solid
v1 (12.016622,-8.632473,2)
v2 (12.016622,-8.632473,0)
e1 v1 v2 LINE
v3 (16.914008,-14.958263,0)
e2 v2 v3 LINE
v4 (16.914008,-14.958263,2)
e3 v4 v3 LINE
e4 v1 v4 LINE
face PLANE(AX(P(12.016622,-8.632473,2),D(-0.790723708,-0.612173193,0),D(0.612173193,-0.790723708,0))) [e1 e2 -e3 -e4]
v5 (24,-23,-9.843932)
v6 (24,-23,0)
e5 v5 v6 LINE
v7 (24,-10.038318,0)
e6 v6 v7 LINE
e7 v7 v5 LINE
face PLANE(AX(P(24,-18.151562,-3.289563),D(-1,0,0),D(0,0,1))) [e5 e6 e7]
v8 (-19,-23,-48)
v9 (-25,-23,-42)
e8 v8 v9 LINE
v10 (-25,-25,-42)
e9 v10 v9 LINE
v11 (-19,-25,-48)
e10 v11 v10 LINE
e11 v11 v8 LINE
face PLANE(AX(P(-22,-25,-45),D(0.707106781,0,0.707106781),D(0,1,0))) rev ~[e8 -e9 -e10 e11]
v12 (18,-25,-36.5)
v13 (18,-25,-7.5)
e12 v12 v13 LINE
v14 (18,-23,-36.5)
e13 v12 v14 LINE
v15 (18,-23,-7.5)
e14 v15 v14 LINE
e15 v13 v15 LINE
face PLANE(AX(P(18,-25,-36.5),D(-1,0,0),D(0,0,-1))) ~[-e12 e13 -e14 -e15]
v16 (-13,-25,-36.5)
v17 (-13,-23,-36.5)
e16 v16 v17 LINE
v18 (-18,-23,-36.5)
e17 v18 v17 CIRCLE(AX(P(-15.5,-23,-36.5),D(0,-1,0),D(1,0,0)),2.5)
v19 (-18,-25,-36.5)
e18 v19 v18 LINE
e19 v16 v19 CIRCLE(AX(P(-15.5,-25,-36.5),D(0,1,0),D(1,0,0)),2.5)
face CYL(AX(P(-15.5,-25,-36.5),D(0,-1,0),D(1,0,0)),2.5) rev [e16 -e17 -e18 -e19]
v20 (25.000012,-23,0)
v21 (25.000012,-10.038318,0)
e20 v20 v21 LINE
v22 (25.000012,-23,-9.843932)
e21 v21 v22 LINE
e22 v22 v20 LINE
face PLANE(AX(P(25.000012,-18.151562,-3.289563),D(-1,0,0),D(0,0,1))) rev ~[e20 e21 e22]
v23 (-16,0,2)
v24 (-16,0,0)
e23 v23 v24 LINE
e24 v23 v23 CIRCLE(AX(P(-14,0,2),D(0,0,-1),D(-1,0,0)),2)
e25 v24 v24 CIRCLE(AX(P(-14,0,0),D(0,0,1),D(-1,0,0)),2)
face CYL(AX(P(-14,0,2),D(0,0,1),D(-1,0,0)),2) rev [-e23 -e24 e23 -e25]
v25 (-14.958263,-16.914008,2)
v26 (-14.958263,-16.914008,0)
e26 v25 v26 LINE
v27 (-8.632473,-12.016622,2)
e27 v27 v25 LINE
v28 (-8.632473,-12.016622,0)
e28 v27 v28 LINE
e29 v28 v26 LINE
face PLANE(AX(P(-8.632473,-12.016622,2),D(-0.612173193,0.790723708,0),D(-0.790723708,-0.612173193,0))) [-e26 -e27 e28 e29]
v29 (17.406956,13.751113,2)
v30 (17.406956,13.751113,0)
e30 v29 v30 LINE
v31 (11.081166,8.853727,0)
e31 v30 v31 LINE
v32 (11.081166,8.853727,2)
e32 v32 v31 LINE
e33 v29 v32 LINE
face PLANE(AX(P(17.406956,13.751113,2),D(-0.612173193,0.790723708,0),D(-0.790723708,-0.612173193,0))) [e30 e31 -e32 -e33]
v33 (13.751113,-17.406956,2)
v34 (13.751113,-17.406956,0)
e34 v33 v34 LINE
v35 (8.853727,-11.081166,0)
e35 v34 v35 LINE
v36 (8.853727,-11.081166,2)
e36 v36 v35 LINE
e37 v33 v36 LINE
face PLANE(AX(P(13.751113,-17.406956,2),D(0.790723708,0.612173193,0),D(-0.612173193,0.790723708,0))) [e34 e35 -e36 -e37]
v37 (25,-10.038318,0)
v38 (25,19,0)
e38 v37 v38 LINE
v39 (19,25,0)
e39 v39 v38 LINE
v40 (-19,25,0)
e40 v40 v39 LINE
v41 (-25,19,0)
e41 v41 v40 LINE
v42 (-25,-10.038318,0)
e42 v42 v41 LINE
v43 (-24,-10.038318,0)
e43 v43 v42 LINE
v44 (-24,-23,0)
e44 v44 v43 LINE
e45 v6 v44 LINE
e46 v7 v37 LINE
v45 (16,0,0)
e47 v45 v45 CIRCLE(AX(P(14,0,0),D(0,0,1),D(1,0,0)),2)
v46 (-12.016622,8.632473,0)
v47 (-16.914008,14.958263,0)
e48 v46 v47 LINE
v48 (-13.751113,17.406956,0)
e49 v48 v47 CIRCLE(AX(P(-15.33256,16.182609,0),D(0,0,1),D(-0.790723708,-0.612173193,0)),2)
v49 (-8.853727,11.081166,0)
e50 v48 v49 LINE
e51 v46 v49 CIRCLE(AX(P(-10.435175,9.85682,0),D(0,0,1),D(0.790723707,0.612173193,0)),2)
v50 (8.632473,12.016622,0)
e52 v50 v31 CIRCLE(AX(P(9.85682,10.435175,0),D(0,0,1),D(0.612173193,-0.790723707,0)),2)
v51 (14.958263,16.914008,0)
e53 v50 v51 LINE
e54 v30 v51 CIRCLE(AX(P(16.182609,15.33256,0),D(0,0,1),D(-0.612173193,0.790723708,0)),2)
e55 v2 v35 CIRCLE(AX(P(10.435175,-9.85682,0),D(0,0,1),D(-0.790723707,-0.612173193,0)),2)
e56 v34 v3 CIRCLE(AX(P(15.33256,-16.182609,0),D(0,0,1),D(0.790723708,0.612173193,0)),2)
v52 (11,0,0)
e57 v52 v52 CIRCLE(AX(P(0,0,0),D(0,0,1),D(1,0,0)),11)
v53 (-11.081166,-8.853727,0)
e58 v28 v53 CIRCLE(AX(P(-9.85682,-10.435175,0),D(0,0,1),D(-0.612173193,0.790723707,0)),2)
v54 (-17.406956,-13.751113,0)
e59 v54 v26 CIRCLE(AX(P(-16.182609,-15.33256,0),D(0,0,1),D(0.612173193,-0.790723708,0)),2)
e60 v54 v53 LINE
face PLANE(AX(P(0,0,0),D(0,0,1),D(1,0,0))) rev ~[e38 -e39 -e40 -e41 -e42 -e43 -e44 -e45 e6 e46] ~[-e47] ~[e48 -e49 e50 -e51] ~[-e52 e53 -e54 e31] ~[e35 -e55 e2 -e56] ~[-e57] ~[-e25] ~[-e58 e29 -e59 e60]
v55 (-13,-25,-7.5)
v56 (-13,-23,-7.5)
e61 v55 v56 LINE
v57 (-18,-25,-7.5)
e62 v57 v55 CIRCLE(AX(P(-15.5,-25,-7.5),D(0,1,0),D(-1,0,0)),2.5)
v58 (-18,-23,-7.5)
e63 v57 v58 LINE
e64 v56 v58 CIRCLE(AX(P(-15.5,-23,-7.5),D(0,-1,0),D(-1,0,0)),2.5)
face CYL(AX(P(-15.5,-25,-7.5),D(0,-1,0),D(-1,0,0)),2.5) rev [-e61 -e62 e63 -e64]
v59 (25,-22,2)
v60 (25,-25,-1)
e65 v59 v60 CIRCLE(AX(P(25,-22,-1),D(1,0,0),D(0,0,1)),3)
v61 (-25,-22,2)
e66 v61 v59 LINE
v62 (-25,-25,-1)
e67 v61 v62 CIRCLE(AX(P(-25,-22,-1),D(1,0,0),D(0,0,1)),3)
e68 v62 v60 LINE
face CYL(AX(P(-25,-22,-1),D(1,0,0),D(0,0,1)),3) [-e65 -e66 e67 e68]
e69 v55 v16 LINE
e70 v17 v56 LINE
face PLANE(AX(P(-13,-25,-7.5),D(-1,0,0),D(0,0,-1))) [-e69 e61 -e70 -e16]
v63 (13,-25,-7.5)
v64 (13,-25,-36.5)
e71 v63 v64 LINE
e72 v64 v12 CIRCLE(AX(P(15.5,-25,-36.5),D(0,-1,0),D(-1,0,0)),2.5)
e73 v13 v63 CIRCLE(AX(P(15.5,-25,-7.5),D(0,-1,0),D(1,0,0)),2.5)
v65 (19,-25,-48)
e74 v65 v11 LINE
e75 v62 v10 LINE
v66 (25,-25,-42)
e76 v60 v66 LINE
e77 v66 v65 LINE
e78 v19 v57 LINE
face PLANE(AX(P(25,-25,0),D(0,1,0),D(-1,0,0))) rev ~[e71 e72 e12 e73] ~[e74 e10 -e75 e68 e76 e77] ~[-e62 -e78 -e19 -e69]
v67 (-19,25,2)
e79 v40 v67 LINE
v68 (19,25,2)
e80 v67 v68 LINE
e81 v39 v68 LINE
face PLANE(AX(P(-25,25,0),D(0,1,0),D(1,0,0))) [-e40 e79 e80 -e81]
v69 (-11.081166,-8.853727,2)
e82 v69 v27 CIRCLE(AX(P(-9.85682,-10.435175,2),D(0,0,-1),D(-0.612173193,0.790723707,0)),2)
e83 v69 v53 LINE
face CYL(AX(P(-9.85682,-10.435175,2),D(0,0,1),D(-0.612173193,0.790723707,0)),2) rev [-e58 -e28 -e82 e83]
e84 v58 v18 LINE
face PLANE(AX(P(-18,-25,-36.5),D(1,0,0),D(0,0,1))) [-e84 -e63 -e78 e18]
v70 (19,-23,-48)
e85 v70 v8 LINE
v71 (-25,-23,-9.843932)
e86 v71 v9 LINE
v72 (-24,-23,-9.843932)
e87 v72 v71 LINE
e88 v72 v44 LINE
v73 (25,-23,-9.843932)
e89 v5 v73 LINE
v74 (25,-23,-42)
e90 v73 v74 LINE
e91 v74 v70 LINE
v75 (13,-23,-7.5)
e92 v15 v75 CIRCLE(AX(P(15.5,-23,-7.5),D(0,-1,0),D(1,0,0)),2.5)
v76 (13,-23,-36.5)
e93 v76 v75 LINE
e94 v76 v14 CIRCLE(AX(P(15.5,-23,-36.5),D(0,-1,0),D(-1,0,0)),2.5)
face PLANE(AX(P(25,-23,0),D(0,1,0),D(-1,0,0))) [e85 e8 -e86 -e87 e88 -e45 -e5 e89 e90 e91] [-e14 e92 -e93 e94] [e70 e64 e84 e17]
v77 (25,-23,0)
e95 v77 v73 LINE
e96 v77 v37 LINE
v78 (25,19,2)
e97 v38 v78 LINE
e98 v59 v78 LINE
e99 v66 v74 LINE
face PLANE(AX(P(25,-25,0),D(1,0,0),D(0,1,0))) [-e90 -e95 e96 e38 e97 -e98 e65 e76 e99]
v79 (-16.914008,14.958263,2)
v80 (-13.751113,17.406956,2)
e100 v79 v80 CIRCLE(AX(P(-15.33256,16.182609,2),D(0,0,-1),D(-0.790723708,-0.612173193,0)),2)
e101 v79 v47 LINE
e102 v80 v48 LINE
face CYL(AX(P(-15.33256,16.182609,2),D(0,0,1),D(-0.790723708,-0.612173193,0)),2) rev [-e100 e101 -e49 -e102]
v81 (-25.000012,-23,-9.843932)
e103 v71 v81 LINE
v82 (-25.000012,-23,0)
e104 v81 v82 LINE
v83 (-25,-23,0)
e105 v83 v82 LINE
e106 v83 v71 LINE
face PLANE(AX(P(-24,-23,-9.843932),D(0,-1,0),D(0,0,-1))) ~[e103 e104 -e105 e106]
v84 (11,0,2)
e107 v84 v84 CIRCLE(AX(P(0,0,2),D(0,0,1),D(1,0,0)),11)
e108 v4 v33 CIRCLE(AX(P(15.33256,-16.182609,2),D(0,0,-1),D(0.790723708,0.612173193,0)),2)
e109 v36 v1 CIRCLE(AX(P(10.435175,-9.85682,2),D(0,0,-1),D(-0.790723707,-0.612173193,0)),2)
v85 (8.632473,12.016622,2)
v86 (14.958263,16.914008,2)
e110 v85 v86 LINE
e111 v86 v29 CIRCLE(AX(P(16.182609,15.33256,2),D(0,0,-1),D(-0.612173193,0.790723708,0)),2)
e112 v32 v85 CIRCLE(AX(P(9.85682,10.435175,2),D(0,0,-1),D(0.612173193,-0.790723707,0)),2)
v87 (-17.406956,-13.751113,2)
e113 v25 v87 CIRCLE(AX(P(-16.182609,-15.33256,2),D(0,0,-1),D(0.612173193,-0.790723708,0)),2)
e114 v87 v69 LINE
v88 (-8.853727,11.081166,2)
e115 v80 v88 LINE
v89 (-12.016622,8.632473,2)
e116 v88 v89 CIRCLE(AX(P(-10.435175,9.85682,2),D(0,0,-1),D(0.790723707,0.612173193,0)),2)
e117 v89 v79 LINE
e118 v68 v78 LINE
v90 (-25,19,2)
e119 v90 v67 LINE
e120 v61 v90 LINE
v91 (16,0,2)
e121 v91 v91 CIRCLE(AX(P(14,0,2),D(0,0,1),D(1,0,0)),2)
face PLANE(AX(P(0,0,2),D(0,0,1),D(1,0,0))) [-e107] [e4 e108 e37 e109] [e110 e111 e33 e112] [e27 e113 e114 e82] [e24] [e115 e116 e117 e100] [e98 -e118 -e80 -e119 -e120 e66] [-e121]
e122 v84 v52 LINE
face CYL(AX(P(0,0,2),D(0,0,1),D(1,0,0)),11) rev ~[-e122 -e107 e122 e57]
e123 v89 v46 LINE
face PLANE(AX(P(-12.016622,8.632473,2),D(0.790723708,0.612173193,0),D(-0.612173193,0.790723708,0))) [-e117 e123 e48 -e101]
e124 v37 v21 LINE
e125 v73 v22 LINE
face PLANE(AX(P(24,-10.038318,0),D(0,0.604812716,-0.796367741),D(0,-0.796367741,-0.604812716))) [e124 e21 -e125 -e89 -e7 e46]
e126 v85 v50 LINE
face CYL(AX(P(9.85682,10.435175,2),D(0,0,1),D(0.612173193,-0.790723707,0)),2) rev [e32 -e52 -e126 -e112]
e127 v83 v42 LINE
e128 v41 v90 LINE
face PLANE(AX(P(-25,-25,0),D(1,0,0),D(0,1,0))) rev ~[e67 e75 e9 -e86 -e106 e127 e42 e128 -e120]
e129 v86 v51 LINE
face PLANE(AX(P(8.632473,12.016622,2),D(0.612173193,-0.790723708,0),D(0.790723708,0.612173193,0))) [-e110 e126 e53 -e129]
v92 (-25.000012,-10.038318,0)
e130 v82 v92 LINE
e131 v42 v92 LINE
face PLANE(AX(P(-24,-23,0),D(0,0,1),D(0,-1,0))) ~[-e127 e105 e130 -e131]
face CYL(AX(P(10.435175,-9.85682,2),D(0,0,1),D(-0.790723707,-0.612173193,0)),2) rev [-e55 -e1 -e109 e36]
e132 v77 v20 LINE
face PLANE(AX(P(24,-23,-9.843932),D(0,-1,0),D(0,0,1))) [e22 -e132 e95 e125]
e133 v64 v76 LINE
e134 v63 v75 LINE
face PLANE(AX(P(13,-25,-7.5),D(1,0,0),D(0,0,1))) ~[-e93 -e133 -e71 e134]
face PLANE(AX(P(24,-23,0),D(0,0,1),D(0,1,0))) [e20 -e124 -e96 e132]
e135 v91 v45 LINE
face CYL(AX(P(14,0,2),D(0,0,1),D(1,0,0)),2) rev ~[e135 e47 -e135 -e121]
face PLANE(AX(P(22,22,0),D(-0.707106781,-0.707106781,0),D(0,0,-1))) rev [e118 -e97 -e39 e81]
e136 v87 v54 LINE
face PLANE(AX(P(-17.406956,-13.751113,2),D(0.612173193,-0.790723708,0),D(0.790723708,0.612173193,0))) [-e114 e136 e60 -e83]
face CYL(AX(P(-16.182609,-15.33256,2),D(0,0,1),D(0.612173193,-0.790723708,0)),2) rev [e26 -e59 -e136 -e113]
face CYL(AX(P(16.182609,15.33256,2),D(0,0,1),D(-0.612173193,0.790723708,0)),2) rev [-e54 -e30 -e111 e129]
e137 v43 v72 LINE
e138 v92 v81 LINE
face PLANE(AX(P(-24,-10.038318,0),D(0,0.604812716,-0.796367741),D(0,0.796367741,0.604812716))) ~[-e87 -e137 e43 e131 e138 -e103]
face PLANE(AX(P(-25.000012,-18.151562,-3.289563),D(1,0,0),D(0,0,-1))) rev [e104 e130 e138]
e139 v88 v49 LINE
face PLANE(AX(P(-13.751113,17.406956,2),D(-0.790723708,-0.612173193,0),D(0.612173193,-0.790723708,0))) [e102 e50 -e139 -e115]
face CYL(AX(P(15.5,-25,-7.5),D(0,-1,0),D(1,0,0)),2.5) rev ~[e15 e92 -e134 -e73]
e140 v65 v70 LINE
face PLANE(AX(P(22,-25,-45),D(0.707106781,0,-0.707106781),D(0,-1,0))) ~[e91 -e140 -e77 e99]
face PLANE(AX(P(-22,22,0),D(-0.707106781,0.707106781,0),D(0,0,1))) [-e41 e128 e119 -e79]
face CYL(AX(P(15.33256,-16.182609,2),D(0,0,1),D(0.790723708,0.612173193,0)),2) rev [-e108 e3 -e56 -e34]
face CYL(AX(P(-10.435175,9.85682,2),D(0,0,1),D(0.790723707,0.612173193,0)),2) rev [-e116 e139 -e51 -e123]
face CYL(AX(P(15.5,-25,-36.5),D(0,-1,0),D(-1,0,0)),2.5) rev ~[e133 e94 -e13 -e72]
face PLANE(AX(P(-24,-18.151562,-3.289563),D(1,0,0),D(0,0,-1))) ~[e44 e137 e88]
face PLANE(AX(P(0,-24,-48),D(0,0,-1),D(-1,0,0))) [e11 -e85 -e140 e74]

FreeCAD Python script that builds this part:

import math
import FreeCAD as App
import Part
import Sketcher
from FreeCAD import Vector


def edges_at(feature, points):
    """Names of the edges that pass closest to the given points."""
    edges = feature.Shape.Edges
    near = lambda p: min(range(len(edges)), key=lambda i: edges[i].distToShape(Part.Vertex(*p))[0])
    return sorted({f"Edge{near(p) + 1}" for p in points})


def add_polygon(sketch, points):
    """Adds a closed chain of lines whose ends are joined by coincident constraints."""
    first, n = sketch.GeometryCount, len(points)
    for a, b in zip(points, points[1:] + points[:1]):
        sketch.addGeometry(Part.LineSegment(App.Vector(*a, 0), App.Vector(*b, 0)), False)
    for i in range(n):
        sketch.addConstraint(Sketcher.Constraint("Coincident", first + i, 2, first + (i + 1) % n, 1))

doc = App.newDocument("Part")
body = doc.addObject("PartDesign::Body", "Body")

sketch1 = body.newObject("Sketcher::SketchObject", "Sketch")
sketch1.AttachmentSupport = (doc.getObject("XY_Plane"), [""])
sketch1.MapMode = "FlatFace"
add_polygon(sketch1, [(-25, 25), (-25, -25), (25, -25), (25, 25)])
sketch1.addConstraint(Sketcher.Constraint("Vertical", 0))
sketch1.addConstraint(Sketcher.Constraint("Horizontal", 1))
sketch1.addConstraint(Sketcher.Constraint("Vertical", 2))
sketch1.addConstraint(Sketcher.Constraint("Horizontal", 3))
sketch1.addConstraint(Sketcher.Constraint("Symmetric", 0, 2, 2, 2, -1, 1))
sketch1.addConstraint(Sketcher.Constraint("Equal", 3, 0))
sketch1.addConstraint(Sketcher.Constraint("DistanceX", 1, 1, 1, 2, 50.0))
pad1 = body.newObject("PartDesign::Pad", "Pad")
pad1.Profile = sketch1
pad1.Length = 2

sketch2 = body.newObject("Sketcher::SketchObject", "Sketch001")
sketch2.AttachmentSupport = (doc.getObject("XY_Plane"), [""])
sketch2.MapMode = "FlatFace"
sketch2.AttachmentOffset = App.Placement(Vector(0, 0, 2), App.Rotation())
sketch2.addGeometry(Part.Circle(Vector(0, 0, 0), Vector(0, 0, 1), 11), False)
sketch2.addConstraint(Sketcher.Constraint("Coincident", 0, 3, -1, 1))
sketch2.addConstraint(Sketcher.Constraint("Diameter", 0, 22.0))
pocket1 = body.newObject("PartDesign::Pocket", "Pocket")
pocket1.Profile = sketch2
pocket1.Type = "ThroughAll"
doc.recompute()

chamfer = body.newObject("PartDesign::Chamfer", "Chamfer")
chamfer.Base = (pocket1, edges_at(pocket1, [(-25, 25, 1)]))
chamfer.Size = 6
doc.recompute()

chamfer2 = body.newObject("PartDesign::Chamfer", "Chamfer001")
chamfer2.Base = (chamfer, edges_at(chamfer, [(25, 25, 1)]))
chamfer2.Size = 6

sketch3 = body.newObject("Sketcher::SketchObject", "Sketch002")
sketch3.AttachmentSupport = (doc.getObject("XY_Plane"), [""])
sketch3.MapMode = "FlatFace"
sketch3.AttachmentOffset = App.Placement(Vector(0, 0, 2), App.Rotation())
sketch3.addGeometry(Part.LineSegment(Vector(14.958263, 16.914008, 0), Vector(8.632473, 12.016622, 0)), False)
sketch3.addGeometry(Part.ArcOfCircle(Part.Circle(Vector(9.85682, 10.435175, 0), Vector(0, 0, 1), 2), math.radians(127.746805), math.radians(307.746805)), False)
sketch3.addGeometry(Part.LineSegment(Vector(11.081166, 8.853727, 0), Vector(17.406956, 13.751113, 0)), False)
sketch3.addGeometry(Part.ArcOfCircle(Part.Circle(Vector(16.182609, 15.33256, 0), Vector(0, 0, 1), 2), math.radians(-52.253195), math.radians(127.746805)), False)
sketch3.addConstraint(Sketcher.Constraint("Tangent", 0, 2, 1, 1))
sketch3.addConstraint(Sketcher.Constraint("Tangent", 1, 2, 2, 1))
sketch3.addConstraint(Sketcher.Constraint("Tangent", 2, 2, 3, 1))
sketch3.addConstraint(Sketcher.Constraint("Tangent", 3, 2, 0, 1))
sketch3.addConstraint(Sketcher.Constraint("Equal", 1, 3))
sketch3.addConstraint(Sketcher.Constraint("Radius", 1, 2.0))
sketch3.addConstraint(Sketcher.Constraint("Distance", 0, 8.0))
sketch3.addConstraint(Sketcher.Constraint("DistanceX", -1, 1, 1, 3, 9.85682))
sketch3.addConstraint(Sketcher.Constraint("DistanceX", -1, 1, 3, 3, 16.182609))
sketch3.addConstraint(Sketcher.Constraint("DistanceY", -1, 1, 3, 3, 15.33256))
pocket2 = body.newObject("PartDesign::Pocket", "Pocket001")
pocket2.Profile = sketch3
pocket2.Type = "ThroughAll"
doc.recompute()

polarpattern = body.newObject("PartDesign::PolarPattern", "PolarPattern")
polarpattern.Originals = [pocket2]
polarpattern.Axis = (doc.getObject("Z_Axis"), [""])
polarpattern.Angle = 360
polarpattern.Occurrences = 4
body.Tip = polarpattern

sketch4 = body.newObject("Sketcher::SketchObject", "Sketch003")
sketch4.AttachmentSupport = (doc.getObject("XY_Plane"), [""])
sketch4.MapMode = "FlatFace"
sketch4.AttachmentOffset = App.Placement(Vector(0, 0, 2), App.Rotation())
sketch4.addGeometry(Part.Circle(Vector(14, 0, 0), Vector(0, 0, 1), 2), False)
sketch4.addConstraint(Sketcher.Constraint("PointOnObject", 0, 3, -1))
sketch4.addConstraint(Sketcher.Constraint("Diameter", 0, 4.0))
sketch4.addConstraint(Sketcher.Constraint("DistanceX", -1, 1, 0, 3, 14.0))
pocket3 = body.newObject("PartDesign::Pocket", "Pocket002")
pocket3.Profile = sketch4
pocket3.Type = "ThroughAll"
doc.recompute()

mirrored = body.newObject("PartDesign::Mirrored", "Mirrored")
mirrored.Originals = [pocket3]
mirrored.MirrorPlane = (doc.getObject("YZ_Plane"), [""])
body.Tip = mirrored

sketch5 = body.newObject("Sketcher::SketchObject", "Sketch004")
sketch5.AttachmentSupport = (doc.getObject("XY_Plane"), [""])
sketch5.MapMode = "FlatFace"
add_polygon(sketch5, [(25, -23), (25, -25), (-25, -25), (-25, -23)])
sketch5.addConstraint(Sketcher.Constraint("Vertical", 0))
sketch5.addConstraint(Sketcher.Constraint("Horizontal", 1))
sketch5.addConstraint(Sketcher.Constraint("Vertical", 2))
sketch5.addConstraint(Sketcher.Constraint("Horizontal", 3))
sketch5.addConstraint(Sketcher.Constraint("DistanceX", 1, 2, 1, 1, 50.0))
sketch5.addConstraint(Sketcher.Constraint("DistanceY", 0, 2, 0, 1, 2.0))
sketch5.addConstraint(Sketcher.Constraint("DistanceX", -1, 1, 0, 2, 25.0))
sketch5.addConstraint(Sketcher.Constraint("DistanceY", 0, 2, -1, 1, 25.0))
pad2 = body.newObject("PartDesign::Pad", "Pad001")
pad2.Profile = sketch5
pad2.Length = 48
pad2.Reversed = True
doc.recompute()

chamfer3 = body.newObject("PartDesign::Chamfer", "Chamfer002")
chamfer3.Base = (pad2, edges_at(pad2, [(25, -24, -48)]))
chamfer3.Size = 6
doc.recompute()

chamfer4 = body.newObject("PartDesign::Chamfer", "Chamfer003")
chamfer4.Base = (chamfer3, edges_at(chamfer3, [(-25, -24, -48)]))
chamfer4.Size = 6

sketch6 = body.newObject("Sketcher::SketchObject", "Sketch005")
sketch6.AttachmentSupport = (doc.getObject("XZ_Plane"), [""])
sketch6.MapMode = "FlatFace"
sketch6.AttachmentOffset = App.Placement(Vector(0, 0, 25), App.Rotation())
sketch6.addGeometry(Part.LineSegment(Vector(-13, -36.5, 0), Vector(-13, -7.5, 0)), False)
sketch6.addGeometry(Part.ArcOfCircle(Part.Circle(Vector(-15.5, -7.5, 0), Vector(0, 0, 1), 2.5), math.radians(0), math.radians(180)), False)
sketch6.addGeometry(Part.LineSegment(Vector(-18, -7.5, 0), Vector(-18, -36.5, 0)), False)
sketch6.addGeometry(Part.ArcOfCircle(Part.Circle(Vector(-15.5, -36.5, 0), Vector(0, 0, 1), 2.5), math.radians(180), math.radians(360)), False)
sketch6.addConstraint(Sketcher.Constraint("Tangent", 0, 2, 1, 1))
sketch6.addConstraint(Sketcher.Constraint("Tangent", 1, 2, 2, 1))
sketch6.addConstraint(Sketcher.Constraint("Tangent", 2, 2, 3, 1))
sketch6.addConstraint(Sketcher.Constraint("Tangent", 3, 2, 0, 1))
sketch6.addConstraint(Sketcher.Constraint("Vertical", 0))
sketch6.addConstraint(Sketcher.Constraint("Vertical", 2))
sketch6.addConstraint(Sketcher.Constraint("Radius", 1, 2.5))
sketch6.addConstraint(Sketcher.Constraint("DistanceY", 0, 1, 0, 2, 29.0))
sketch6.addConstraint(Sketcher.Constraint("DistanceX", 0, 2, -1, 1, 13.0))
sketch6.addConstraint(Sketcher.Constraint("DistanceY", 1, 3, -1, 1, 7.5))
pocket4 = body.newObject("PartDesign::Pocket", "Pocket003")
pocket4.Profile = sketch6
pocket4.Type = "ThroughAll"
doc.recompute()

mirrored2 = body.newObject("PartDesign::Mirrored", "Mirrored001")
mirrored2.Originals = [pocket4]
mirrored2.MirrorPlane = (doc.getObject("YZ_Plane"), [""])
body.Tip = mirrored2

sketch7 = body.newObject("Sketcher::SketchObject", "Sketch006")
sketch7.AttachmentSupport = (doc.getObject("YZ_Plane"), [""])
sketch7.MapMode = "FlatFace"
sketch7.AttachmentOffset = App.Placement(Vector(0, 0, 24), App.Rotation())
add_polygon(sketch7, [(-23, -9.843932), (-10.038318, 0), (-23, 0)])
sketch7.addConstraint(Sketcher.Constraint("Horizontal", 1))
sketch7.addConstraint(Sketcher.Constraint("Vertical", 2))
sketch7.addConstraint(Sketcher.Constraint("PointOnObject", 0, 2, -1))
sketch7.addConstraint(Sketcher.Constraint("DistanceX", 1, 2, -1, 1, 23.0))
sketch7.addConstraint(Sketcher.Constraint("Distance", 0, 16.276))
sketch7.addConstraint(Sketcher.Constraint("DistanceX", 1, 2, 1, 1, 12.961682))
pad3 = body.newObject("PartDesign::Pad", "Pad002")
pad3.Profile = sketch7
pad3.Length = 1.000012
doc.recompute()

mirrored3 = body.newObject("PartDesign::Mirrored", "Mirrored002")
mirrored3.Originals = [pad3]
mirrored3.MirrorPlane = (doc.getObject("YZ_Plane"), [""])
body.Tip = mirrored3
doc.recompute()

fillet = body.newObject("PartDesign::Fillet", "Fillet")
fillet.Base = (mirrored3, edges_at(mirrored3, [(0, -25, 2)]))
fillet.Radius = 3

doc.recompute()
